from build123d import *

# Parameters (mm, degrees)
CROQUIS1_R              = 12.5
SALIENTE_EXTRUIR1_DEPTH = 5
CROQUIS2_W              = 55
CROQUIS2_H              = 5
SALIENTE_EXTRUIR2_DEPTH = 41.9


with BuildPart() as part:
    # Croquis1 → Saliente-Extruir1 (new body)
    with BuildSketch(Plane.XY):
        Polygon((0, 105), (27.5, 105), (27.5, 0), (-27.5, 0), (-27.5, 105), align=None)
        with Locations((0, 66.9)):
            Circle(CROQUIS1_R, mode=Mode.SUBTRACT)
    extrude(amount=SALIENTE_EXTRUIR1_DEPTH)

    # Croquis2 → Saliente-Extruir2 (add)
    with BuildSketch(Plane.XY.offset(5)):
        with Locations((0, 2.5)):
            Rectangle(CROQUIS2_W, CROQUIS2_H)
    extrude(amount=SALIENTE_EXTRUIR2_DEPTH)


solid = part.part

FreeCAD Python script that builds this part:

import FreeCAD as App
import Part
import Sketcher


def add_polygon(sketch, points):
    """Adds a closed chain of lines whose ends are joined by coincident constraints."""
    first, n = sketch.GeometryCount, len(points)
    for a, b in zip(points, points[1:] + points[:1]):
        sketch.addGeometry(Part.LineSegment(App.Vector(*a, 0), App.Vector(*b, 0)), False)
    for i in range(n):
        sketch.addConstraint(Sketcher.Constraint("Coincident", first + i, 2, first + (i + 1) % n, 1))

doc = App.newDocument("Part")
params = doc.addObject("Spreadsheet::Sheet", "Params")
for row, (alias, value) in enumerate([
    ("sketch1_diameter", "25 mm"),
    ("sketch1_width", "55 mm"),
    ("sketch1_height", "105 mm"),
    ("pad1_length", "5 mm"),
    ("sketch2_width", "55 mm"),
    ("sketch2_height", "5 mm"),
    ("pad2_length", "41.9 mm"),
], start=1):
    params.set(f"A{row}", alias)
    params.set(f"B{row}", "=" + value)
    params.setAlias(f"B{row}", alias)

body = doc.addObject("PartDesign::Body", "Body")

sketch1 = body.newObject("Sketcher::SketchObject", "Sketch")
sketch1.AttachmentSupport = (doc.getObject("XY_Plane"), [""])
sketch1.MapMode = "FlatFace"
add_polygon(sketch1, [(28, 105), (-28, 105), (-28, 0), (28, 0)])
sketch1.addGeometry(Part.Circle(App.Vector(0, 67, 0), App.Vector(0, 0, 1), 12), False)
sketch1.addConstraint([
    Sketcher.Constraint("Horizontal", 0),
    Sketcher.Constraint("Vertical", 1),
    Sketcher.Constraint("Horizontal", 2),
    Sketcher.Constraint("Vertical", 3),
    Sketcher.Constraint("Symmetric", 1, 2, 2, 2, -1, 1),
    Sketcher.Constraint("PointOnObject", 4, 3, -2),
    Sketcher.Constraint("Diameter", 4, 25.0),
    Sketcher.Constraint("DistanceX", 0, 2, 0, 1, 55.0),
    Sketcher.Constraint("DistanceY", 1, 2, 1, 1, 105.0),
    Sketcher.Constraint("DistanceY", -1, 1, 4, 3, 66.9),
])
sketch1.setExpression("Constraints[10]", "Params.sketch1_diameter")
sketch1.setExpression("Constraints[11]", "Params.sketch1_width")
sketch1.setExpression("Constraints[12]", "Params.sketch1_height")
pad1 = body.newObject("PartDesign::Pad", "Pad")
pad1.Profile = sketch1
pad1.setExpression("Length", "Params.pad1_length")

sketch2 = body.newObject("Sketcher::SketchObject", "Sketch001")
sketch2.AttachmentSupport = (doc.getObject("XY_Plane"), [""])
sketch2.MapMode = "FlatFace"
sketch2.AttachmentOffset = App.Placement(App.Vector(0, 0, 5), App.Rotation())
add_polygon(sketch2, [(-28, 5), (-28, 0), (28, 0), (28, 5)])
sketch2.addConstraint([
    Sketcher.Constraint("Vertical", 0),
    Sketcher.Constraint("Horizontal", 1),
    Sketcher.Constraint("Vertical", 2),
    Sketcher.Constraint("Horizontal", 3),
    Sketcher.Constraint("Symmetric", 0, 2, 1, 2, -1, 1),
    Sketcher.Constraint("DistanceX", 1, 1, 1, 2, 55.0),
    Sketcher.Constraint("DistanceY", 0, 2, 0, 1, 5.0),
])
sketch2.setExpression("Constraints[9]", "Params.sketch2_width")
sketch2.setExpression("Constraints[10]", "Params.sketch2_height")
pad2 = body.newObject("PartDesign::Pad", "Pad001")
pad2.Profile = sketch2
pad2.setExpression("Length", "Params.pad2_length")

doc.recompute()
